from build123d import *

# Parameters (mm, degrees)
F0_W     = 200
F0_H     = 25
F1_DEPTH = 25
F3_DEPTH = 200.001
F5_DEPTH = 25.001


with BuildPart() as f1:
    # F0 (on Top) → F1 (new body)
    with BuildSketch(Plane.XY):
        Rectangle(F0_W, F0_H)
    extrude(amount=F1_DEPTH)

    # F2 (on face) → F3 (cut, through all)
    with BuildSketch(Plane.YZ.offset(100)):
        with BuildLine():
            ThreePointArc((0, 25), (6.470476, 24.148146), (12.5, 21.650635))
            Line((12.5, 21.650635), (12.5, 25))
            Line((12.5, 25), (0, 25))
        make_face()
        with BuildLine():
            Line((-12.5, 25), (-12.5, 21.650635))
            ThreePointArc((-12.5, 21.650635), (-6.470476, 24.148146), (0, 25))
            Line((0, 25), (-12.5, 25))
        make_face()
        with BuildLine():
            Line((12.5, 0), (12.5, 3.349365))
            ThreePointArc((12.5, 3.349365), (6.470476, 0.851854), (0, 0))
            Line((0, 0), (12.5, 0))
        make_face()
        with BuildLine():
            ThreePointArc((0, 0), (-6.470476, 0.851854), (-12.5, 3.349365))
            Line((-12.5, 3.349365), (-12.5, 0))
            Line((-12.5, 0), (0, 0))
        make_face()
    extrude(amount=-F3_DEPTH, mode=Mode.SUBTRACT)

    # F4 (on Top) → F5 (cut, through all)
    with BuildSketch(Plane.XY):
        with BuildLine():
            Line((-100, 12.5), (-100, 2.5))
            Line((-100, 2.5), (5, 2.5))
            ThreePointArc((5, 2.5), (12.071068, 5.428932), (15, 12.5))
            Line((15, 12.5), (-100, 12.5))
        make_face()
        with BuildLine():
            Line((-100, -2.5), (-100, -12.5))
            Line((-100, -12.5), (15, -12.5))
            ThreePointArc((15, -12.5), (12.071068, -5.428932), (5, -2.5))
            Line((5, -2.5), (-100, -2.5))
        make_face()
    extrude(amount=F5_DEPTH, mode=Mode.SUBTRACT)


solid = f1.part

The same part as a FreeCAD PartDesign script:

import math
import FreeCAD as App
import Part
import Sketcher
Q = App.Units.Quantity


def add_polygon(sketch, points):
    """Adds a closed chain of lines whose ends are joined by coincident constraints."""
    first, n = sketch.GeometryCount, len(points)
    for a, b in zip(points, points[1:] + points[:1]):
        sketch.addGeometry(Part.LineSegment(App.Vector(*a, 0), App.Vector(*b, 0)), False)
    for i in range(n):
        sketch.addConstraint(Sketcher.Constraint("Coincident", first + i, 2, first + (i + 1) % n, 1))

doc = App.newDocument("Part")
body = doc.addObject("PartDesign::Body", "Body")

# Sketch on XY plane
sketch1 = doc.addObject("Sketcher::SketchObject", "Sketch")
body.addObject(sketch1)
sketch1.AttachmentSupport = (doc.XY_Plane, [""])
sketch1.MapMode = "FlatFace"
add_polygon(sketch1, [(-100, 12.5), (-100, -12.5), (100, -12.5), (100, 12.5)])  # lines 0-3
sketch1.addConstraint(Sketcher.Constraint("Vertical", 0))
sketch1.addConstraint(Sketcher.Constraint("Horizontal", 1))
sketch1.addConstraint(Sketcher.Constraint("Vertical", 2))
sketch1.addConstraint(Sketcher.Constraint("Horizontal", 3))
sketch1.addConstraint(Sketcher.Constraint("Symmetric", 0, 2, 2, 2, -1, 1))
sketch1.addConstraint(Sketcher.Constraint("DistanceX", 1, 1, 1, 2, Q("200 mm")))
sketch1.addConstraint(Sketcher.Constraint("DistanceY", 0, 2, 0, 1, Q("25 mm")))
pad1 = doc.addObject("PartDesign::Pad", "Pad")
body.addObject(pad1)
pad1.Profile = sketch1
pad1.Length = 25

# Sketch on YZ plane
sketch2 = doc.addObject("Sketcher::SketchObject", "Sketch001")
body.addObject(sketch2)
sketch2.AttachmentSupport = (doc.YZ_Plane, [""])
sketch2.MapMode = "FlatFace"
sketch2.AttachmentOffset = App.Placement(App.Vector(0, 0, 100), App.Rotation())
sketch2.addGeometry(Part.ArcOfCircle(Part.Circle(App.Vector(0.000002, 0.00001, 0), App.Vector(0, 0, 1), 24.99999), math.radians(59.999994), math.radians(90.000006)), False)
sketch2.addGeometry(Part.LineSegment(App.Vector(12.5, 21.650635, 0), App.Vector(12.5, 25, 0)), False)
sketch2.addGeometry(Part.LineSegment(App.Vector(12.5, 25, 0), App.Vector(0, 25, 0)), False)
sketch2.addGeometry(Part.LineSegment(App.Vector(-12.5, 25, 0), App.Vector(-12.5, 21.650635, 0)), False)
sketch2.addGeometry(Part.ArcOfCircle(Part.Circle(App.Vector(-0.000002, 0.00001, 0), App.Vector(0, 0, 1), 24.99999), math.radians(89.999994), math.radians(120.000006)), False)
sketch2.addGeometry(Part.LineSegment(App.Vector(0, 25, 0), App.Vector(-12.5, 25, 0)), False)
sketch2.addGeometry(Part.LineSegment(App.Vector(12.5, 0, 0), App.Vector(12.5, 3.349365, 0)), False)
sketch2.addGeometry(Part.ArcOfCircle(Part.Circle(App.Vector(0.000002, 24.99999, 0), App.Vector(0, 0, 1), 24.99999), math.radians(-90.000006), math.radians(-59.999994)), False)
sketch2.addGeometry(Part.LineSegment(App.Vector(0, 0, 0), App.Vector(12.5, 0, 0)), False)
sketch2.addGeometry(Part.ArcOfCircle(Part.Circle(App.Vector(-0.000002, 24.99999, 0), App.Vector(0, 0, 1), 24.99999), math.radians(-120.000006), math.radians(-89.999994)), False)
sketch2.addGeometry(Part.LineSegment(App.Vector(-12.5, 3.349365, 0), App.Vector(-12.5, 0, 0)), False)
sketch2.addGeometry(Part.LineSegment(App.Vector(-12.5, 0, 0), App.Vector(0, 0, 0)), False)
sketch2.addConstraint(Sketcher.Constraint("Coincident", 0, 1, 1, 1))
sketch2.addConstraint(Sketcher.Constraint("Coincident", 1, 2, 2, 1))
sketch2.addConstraint(Sketcher.Constraint("Tangent", 2, 2, 0, 2))
sketch2.addConstraint(Sketcher.Constraint("Coincident", 3, 2, 4, 2))
sketch2.addConstraint(Sketcher.Constraint("Tangent", 4, 1, 5, 1))
sketch2.addConstraint(Sketcher.Constraint("Coincident", 5, 2, 3, 1))
sketch2.addConstraint(Sketcher.Constraint("Coincident", 6, 2, 7, 2))
sketch2.addConstraint(Sketcher.Constraint("Tangent", 7, 1, 8, 1))
sketch2.addConstraint(Sketcher.Constraint("Coincident", 8, 2, 6, 1))
sketch2.addConstraint(Sketcher.Constraint("Coincident", 9, 1, 10, 1))
sketch2.addConstraint(Sketcher.Constraint("Coincident", 10, 2, 11, 1))
sketch2.addConstraint(Sketcher.Constraint("Tangent", 11, 2, 9, 2))
sketch2.addConstraint(Sketcher.Constraint("Vertical", 1))
sketch2.addConstraint(Sketcher.Constraint("Horizontal", 2))
sketch2.addConstraint(Sketcher.Constraint("Vertical", 3))
sketch2.addConstraint(Sketcher.Constraint("Horizontal", 5))
sketch2.addConstraint(Sketcher.Constraint("Vertical", 6))
sketch2.addConstraint(Sketcher.Constraint("Horizontal", 8))
sketch2.addConstraint(Sketcher.Constraint("Vertical", 10))
sketch2.addConstraint(Sketcher.Constraint("Horizontal", 11))
sketch2.addConstraint(Sketcher.Constraint("Coincident", 0, 3, -1, 1))
sketch2.addConstraint(Sketcher.Constraint("Coincident", 4, 3, -1, 1))
sketch2.addConstraint(Sketcher.Constraint("Coincident", 7, 1, -1, 1))
sketch2.addConstraint(Sketcher.Constraint("Coincident", 11, 2, -1, 1))
sketch2.addConstraint(Sketcher.Constraint("Equal", 0, 4))
sketch2.addConstraint(Sketcher.Constraint("Equal", 4, 7))
sketch2.addConstraint(Sketcher.Constraint("Equal", 7, 9))
sketch2.addConstraint(Sketcher.Constraint("Horizontal", 0, 1, 3, 2))
sketch2.addConstraint(Sketcher.Constraint("Horizontal", 6, 2, 9, 1))
sketch2.addConstraint(Sketcher.Constraint("Vertical", 1, 2, 6, 2))
sketch2.addConstraint(Sketcher.Constraint("DistanceX", 2, 2, 2, 1, Q("12.5 mm")))
sketch2.addConstraint(Sketcher.Constraint("DistanceY", -1, 1, 1, 2, Q("25 mm")))
pocket1 = doc.addObject("PartDesign::Pocket", "Pocket")
body.addObject(pocket1)
pocket1.Profile = sketch2
pocket1.Type = "ThroughAll"

# Sketch on XY plane
sketch3 = doc.addObject("Sketcher::SketchObject", "Sketch002")
body.addObject(sketch3)
sketch3.AttachmentSupport = (doc.XY_Plane, [""])
sketch3.MapMode = "FlatFace"
sketch3.addGeometry(Part.LineSegment(App.Vector(-100, 12.5, 0), App.Vector(-100, 2.5, 0)), False)
sketch3.addGeometry(Part.LineSegment(App.Vector(-100, 2.5, 0), App.Vector(5, 2.5, 0)), False)
sketch3.addGeometry(Part.ArcOfCircle(Part.Circle(App.Vector(5.000001, 12.499999, 0), App.Vector(0, 0, 1), 9.999999), math.radians(-90.000004), math.radians(0.000004)), False)
sketch3.addGeometry(Part.LineSegment(App.Vector(15, 12.5, 0), App.Vector(-100, 12.5, 0)), False)
sketch3.addGeometry(Part.LineSegment(App.Vector(-100, -2.5, 0), App.Vector(-100, -12.5, 0)), False)
sketch3.addGeometry(Part.LineSegment(App.Vector(-100, -12.5, 0), App.Vector(15, -12.5, 0)), False)
sketch3.addGeometry(Part.ArcOfCircle(Part.Circle(App.Vector(5.000001, -12.499999, 0), App.Vector(0, 0, 1), 9.999999), math.radians(-0.000004), math.radians(90.000004)), False)
sketch3.addGeometry(Part.LineSegment(App.Vector(5, -2.5, 0), App.Vector(-100, -2.5, 0)), False)
sketch3.addConstraint(Sketcher.Constraint("Coincident", 0, 2, 1, 1))
sketch3.addConstraint(Sketcher.Constraint("Tangent", 1, 2, 2, 1))
sketch3.addConstraint(Sketcher.Constraint("Coincident", 2, 2, 3, 1))
sketch3.addConstraint(Sketcher.Constraint("Coincident", 3, 2, 0, 1))
sketch3.addConstraint(Sketcher.Constraint("Coincident", 4, 2, 5, 1))
sketch3.addConstraint(Sketcher.Constraint("Coincident", 5, 2, 6, 1))
sketch3.addConstraint(Sketcher.Constraint("Tangent", 6, 2, 7, 1))
sketch3.addConstraint(Sketcher.Constraint("Coincident", 7, 2, 4, 1))
sketch3.addConstraint(Sketcher.Constraint("Vertical", 0))
sketch3.addConstraint(Sketcher.Constraint("Horizontal", 1))
sketch3.addConstraint(Sketcher.Constraint("Horizontal", 3))
sketch3.addConstraint(Sketcher.Constraint("Vertical", 4))
sketch3.addConstraint(Sketcher.Constraint("Horizontal", 5))
sketch3.addConstraint(Sketcher.Constraint("Horizontal", 7))
sketch3.addConstraint(Sketcher.Constraint("Equal", 2, 6))
sketch3.addConstraint(Sketcher.Constraint("Symmetric", 2, 3, 6, 3, -1))
sketch3.addConstraint(Sketcher.Constraint("Symmetric", 3, 2, 4, 2, -1))
sketch3.addConstraint(Sketcher.Constraint("Horizontal", 6, 3, 4, 2))
sketch3.addConstraint(Sketcher.Constraint("Radius", 2, Q("9.999999 mm")))
sketch3.addConstraint(Sketcher.Constraint("DistanceX", 1, 1, 1, 2, Q("105 mm")))
sketch3.addConstraint(Sketcher.Constraint("DistanceX", -1, 1, 2, 3, Q("5.000001 mm")))
sketch3.addConstraint(Sketcher.Constraint("DistanceY", 6, 3, 2, 3, Q("24.999999 mm")))
pocket2 = doc.addObject("PartDesign::Pocket", "Pocket001")
body.addObject(pocket2)
pocket2.Profile = sketch3
pocket2.Type = "ThroughAll"
pocket2.Reversed = True

doc.recompute()
